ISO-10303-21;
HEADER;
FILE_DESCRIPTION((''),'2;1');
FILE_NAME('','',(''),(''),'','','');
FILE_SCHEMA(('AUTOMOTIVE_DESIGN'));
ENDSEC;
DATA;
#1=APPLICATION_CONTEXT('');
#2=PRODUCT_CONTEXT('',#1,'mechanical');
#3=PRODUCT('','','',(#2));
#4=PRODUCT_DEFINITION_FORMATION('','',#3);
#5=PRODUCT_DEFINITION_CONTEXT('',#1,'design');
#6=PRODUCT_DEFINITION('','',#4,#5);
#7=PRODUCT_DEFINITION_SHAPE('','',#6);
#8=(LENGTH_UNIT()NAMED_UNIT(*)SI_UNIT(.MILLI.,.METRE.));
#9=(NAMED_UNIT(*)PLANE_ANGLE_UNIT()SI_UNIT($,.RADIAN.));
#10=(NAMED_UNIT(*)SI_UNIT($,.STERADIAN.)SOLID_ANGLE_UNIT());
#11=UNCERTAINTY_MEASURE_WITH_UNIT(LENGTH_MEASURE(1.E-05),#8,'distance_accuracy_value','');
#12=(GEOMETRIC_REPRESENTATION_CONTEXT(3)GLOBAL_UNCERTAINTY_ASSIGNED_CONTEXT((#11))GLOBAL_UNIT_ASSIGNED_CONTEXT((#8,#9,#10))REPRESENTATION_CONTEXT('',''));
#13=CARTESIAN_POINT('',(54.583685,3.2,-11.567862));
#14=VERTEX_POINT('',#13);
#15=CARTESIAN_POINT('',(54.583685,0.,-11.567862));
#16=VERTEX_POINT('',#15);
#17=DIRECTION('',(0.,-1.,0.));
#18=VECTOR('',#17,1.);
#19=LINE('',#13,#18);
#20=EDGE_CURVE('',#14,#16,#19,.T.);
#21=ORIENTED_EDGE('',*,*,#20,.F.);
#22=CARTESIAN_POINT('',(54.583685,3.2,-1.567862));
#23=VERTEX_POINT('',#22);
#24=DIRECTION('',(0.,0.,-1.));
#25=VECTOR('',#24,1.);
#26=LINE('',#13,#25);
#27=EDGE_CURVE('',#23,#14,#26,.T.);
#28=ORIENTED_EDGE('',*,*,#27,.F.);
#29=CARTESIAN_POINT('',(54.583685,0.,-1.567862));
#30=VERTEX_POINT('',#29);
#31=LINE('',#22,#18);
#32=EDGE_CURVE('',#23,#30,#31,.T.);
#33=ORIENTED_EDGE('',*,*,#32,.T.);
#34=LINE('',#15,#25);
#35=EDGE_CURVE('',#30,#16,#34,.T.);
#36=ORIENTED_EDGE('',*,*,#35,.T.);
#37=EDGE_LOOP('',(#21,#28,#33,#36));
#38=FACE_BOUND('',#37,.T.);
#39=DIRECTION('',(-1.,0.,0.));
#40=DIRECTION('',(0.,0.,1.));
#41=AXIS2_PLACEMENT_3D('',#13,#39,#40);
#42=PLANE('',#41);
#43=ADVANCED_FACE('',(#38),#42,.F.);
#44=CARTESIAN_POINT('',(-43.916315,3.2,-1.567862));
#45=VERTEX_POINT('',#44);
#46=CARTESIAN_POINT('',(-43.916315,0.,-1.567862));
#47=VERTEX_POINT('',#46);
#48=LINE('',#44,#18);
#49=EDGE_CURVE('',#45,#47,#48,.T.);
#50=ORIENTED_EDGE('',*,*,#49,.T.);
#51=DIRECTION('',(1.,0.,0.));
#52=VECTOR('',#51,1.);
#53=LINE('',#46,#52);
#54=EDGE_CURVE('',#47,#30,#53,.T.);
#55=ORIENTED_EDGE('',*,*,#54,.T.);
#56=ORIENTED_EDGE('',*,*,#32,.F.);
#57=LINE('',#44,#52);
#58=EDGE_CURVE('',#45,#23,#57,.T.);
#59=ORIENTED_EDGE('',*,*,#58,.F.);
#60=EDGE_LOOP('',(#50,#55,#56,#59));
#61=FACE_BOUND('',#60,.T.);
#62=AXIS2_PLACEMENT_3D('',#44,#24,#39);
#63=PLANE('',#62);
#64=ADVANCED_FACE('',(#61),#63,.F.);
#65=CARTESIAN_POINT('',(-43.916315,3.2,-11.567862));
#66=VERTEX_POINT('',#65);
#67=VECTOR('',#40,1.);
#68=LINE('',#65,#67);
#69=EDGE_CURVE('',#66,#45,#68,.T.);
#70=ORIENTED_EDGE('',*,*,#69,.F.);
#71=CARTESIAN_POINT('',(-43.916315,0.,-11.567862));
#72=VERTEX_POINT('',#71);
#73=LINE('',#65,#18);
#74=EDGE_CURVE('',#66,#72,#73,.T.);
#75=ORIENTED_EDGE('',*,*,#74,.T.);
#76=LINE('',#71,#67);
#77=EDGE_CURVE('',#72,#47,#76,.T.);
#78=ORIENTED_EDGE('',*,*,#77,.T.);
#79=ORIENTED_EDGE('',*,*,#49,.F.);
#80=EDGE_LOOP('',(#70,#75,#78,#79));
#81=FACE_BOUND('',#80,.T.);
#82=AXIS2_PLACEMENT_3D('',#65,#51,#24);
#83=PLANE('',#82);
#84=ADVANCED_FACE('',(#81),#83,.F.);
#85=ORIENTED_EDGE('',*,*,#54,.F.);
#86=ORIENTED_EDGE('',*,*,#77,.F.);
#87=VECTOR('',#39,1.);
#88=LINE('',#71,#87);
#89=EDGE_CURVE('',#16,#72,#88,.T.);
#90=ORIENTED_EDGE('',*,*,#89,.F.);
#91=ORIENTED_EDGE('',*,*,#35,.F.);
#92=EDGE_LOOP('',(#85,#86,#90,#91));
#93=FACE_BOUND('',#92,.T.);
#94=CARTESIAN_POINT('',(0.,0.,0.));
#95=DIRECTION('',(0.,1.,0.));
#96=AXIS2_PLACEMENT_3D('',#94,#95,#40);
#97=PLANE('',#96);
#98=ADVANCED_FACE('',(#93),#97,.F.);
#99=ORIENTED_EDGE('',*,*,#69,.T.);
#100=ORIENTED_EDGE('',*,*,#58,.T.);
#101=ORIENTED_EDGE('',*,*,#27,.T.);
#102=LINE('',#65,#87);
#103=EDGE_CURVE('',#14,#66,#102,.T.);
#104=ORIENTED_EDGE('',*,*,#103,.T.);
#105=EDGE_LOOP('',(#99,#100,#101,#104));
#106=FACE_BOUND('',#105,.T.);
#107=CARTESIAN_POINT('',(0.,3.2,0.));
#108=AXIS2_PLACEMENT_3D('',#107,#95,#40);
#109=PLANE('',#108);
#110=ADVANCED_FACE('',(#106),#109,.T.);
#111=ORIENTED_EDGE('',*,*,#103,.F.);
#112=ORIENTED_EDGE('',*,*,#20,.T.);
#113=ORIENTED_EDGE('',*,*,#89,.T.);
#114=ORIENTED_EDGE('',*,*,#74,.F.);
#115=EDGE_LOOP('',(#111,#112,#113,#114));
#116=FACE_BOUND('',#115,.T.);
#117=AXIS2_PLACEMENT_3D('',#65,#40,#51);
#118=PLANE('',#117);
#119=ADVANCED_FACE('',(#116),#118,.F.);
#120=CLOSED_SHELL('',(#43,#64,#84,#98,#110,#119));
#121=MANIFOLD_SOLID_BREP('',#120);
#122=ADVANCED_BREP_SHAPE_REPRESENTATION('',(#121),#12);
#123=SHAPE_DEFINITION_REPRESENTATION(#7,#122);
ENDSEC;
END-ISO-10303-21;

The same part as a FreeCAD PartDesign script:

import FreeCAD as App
import Part
import Sketcher
from FreeCAD import Vector
Q = App.Units.Quantity

doc = App.newDocument("Part")
body = doc.addObject("PartDesign::Body", "Body")

sketch1 = body.newObject("Sketcher::SketchObject", "Sketch")
sketch1.AttachmentSupport = (doc.getObject("XZ_Plane"), [""])
sketch1.MapMode = "FlatFace"
sketch1.addGeometry([
    Part.LineSegment(Vector(-44, -12, 0), Vector(-44, -2, 0)),
    Part.LineSegment(Vector(-44, -2, 0), Vector(55, -2, 0)),
    Part.LineSegment(Vector(55, -2, 0), Vector(55, -12, 0)),
    Part.LineSegment(Vector(55, -12, 0), Vector(-44, -12, 0)),
], False)
sketch1.addConstraint([
    Sketcher.Constraint("Coincident", 0, 2, 1, 1),
    Sketcher.Constraint("Coincident", 1, 2, 2, 1),
    Sketcher.Constraint("Coincident", 2, 2, 3, 1),
    Sketcher.Constraint("Coincident", 3, 2, 0, 1),
    Sketcher.Constraint("Vertical", 0),
    Sketcher.Constraint("Horizontal", 1),
    Sketcher.Constraint("Vertical", 2),
    Sketcher.Constraint("Horizontal", 3),
    Sketcher.Constraint("DistanceY", 0, 1, 0, 2, Q("10 mm")),
    Sketcher.Constraint("DistanceX", 1, 1, 1, 2, Q("98.5 mm")),
    Sketcher.Constraint("DistanceX", 0, 2, -1, 1, Q("43.916315 mm")),
    Sketcher.Constraint("DistanceY", 0, 2, -1, 1, Q("1.567862 mm")),
])
pad1 = body.newObject("PartDesign::Pad", "Pad")
pad1.Profile = sketch1
pad1.Length = 3.2
pad1.Reversed = True

doc.recompute()
